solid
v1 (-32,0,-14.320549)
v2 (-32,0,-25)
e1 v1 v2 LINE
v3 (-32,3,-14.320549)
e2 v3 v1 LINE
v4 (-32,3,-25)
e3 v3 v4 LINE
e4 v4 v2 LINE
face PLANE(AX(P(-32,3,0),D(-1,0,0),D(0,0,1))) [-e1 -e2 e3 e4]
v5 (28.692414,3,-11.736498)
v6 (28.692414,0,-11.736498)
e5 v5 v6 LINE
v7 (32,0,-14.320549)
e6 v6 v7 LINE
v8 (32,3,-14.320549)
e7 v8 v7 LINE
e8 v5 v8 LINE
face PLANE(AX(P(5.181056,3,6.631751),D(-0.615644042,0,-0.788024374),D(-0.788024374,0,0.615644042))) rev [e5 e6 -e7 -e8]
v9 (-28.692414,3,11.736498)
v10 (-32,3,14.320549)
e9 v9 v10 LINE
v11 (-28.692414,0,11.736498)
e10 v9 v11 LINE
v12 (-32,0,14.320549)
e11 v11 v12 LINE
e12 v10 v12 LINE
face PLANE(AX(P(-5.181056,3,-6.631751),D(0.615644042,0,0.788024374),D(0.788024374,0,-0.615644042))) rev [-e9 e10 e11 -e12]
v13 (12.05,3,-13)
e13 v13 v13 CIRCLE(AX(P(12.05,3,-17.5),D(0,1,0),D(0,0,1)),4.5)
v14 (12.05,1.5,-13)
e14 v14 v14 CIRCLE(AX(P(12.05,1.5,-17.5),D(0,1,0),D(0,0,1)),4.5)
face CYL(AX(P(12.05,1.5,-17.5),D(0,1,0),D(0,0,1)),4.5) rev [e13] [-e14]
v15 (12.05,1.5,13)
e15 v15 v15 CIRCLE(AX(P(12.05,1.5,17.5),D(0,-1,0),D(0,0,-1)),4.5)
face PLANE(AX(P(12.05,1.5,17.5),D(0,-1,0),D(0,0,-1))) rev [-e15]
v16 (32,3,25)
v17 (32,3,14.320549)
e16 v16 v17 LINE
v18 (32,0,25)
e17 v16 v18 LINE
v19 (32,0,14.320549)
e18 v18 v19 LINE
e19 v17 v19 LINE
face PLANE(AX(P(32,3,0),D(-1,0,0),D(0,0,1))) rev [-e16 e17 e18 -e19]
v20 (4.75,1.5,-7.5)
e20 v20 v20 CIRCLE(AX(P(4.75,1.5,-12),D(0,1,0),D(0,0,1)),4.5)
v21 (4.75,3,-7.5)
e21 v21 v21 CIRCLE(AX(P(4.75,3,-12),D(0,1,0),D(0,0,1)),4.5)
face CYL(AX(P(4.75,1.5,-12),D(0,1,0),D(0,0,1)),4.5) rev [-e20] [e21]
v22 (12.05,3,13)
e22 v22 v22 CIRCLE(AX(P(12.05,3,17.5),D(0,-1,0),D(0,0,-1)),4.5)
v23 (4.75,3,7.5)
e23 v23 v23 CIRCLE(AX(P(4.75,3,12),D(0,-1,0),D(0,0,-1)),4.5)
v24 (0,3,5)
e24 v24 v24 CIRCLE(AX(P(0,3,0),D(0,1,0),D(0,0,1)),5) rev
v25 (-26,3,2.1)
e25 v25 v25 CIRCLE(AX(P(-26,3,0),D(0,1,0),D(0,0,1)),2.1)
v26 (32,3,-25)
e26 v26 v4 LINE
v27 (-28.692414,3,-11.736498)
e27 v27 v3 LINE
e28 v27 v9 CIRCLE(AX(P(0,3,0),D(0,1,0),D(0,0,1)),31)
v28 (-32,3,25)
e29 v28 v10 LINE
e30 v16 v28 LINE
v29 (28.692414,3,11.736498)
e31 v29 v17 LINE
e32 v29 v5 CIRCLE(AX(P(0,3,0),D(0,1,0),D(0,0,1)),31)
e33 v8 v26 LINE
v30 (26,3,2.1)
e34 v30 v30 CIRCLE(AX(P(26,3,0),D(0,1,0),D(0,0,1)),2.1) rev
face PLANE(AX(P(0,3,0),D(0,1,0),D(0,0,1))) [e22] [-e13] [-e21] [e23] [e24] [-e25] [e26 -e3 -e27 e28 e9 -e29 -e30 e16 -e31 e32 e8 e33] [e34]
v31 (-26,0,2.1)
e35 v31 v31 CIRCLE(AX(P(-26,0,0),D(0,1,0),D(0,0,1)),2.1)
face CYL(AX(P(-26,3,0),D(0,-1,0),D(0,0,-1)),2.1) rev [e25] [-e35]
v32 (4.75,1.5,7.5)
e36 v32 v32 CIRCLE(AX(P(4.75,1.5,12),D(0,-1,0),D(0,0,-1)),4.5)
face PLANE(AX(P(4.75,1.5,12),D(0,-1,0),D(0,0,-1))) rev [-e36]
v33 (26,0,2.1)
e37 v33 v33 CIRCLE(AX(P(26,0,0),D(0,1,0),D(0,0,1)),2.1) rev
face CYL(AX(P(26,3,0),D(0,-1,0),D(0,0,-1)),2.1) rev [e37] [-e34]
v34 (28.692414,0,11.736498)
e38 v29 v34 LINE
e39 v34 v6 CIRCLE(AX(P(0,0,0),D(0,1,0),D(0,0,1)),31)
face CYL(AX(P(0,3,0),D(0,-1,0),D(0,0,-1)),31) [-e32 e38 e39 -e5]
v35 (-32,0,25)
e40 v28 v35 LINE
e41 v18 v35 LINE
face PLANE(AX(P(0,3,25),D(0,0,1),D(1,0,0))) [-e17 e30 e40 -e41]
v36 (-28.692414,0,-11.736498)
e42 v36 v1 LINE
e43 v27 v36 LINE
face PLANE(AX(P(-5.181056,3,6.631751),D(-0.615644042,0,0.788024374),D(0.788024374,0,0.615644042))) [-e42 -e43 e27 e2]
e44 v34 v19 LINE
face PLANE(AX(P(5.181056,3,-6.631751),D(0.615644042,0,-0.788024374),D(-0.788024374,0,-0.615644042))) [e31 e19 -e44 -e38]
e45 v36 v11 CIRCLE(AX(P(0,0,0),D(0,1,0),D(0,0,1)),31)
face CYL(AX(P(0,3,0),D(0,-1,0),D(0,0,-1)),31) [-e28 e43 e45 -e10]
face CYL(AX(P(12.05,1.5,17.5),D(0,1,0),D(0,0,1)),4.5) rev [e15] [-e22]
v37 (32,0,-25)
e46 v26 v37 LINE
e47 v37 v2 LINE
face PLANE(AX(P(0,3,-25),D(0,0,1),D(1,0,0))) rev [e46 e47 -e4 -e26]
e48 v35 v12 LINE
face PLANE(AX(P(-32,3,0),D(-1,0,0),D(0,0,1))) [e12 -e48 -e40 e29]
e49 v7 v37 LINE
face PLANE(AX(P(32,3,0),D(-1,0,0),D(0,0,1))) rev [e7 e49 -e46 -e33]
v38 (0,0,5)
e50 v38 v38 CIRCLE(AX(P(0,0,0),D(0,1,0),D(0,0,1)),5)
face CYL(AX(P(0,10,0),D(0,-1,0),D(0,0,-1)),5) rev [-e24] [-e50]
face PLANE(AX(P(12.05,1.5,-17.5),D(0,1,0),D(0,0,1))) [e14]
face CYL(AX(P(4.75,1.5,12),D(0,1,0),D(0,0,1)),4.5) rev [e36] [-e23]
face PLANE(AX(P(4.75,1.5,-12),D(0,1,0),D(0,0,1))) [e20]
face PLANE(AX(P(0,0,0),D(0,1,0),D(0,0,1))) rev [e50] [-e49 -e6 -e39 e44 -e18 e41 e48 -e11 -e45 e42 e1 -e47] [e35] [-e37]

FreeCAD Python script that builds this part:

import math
import FreeCAD as App
import Part
import Sketcher
from FreeCAD import Vector

doc = App.newDocument("Part")
body = doc.addObject("PartDesign::Body", "Body")

# Sketch on XZ plane
sketch1 = doc.addObject("Sketcher::SketchObject", "Sketch")
body.addObject(sketch1)
sketch1.AttachmentSupport = (doc.XZ_Plane, [""])
sketch1.MapMode = "FlatFace"
sketch1.addGeometry(Part.LineSegment(Vector(32, 25, 0), Vector(32, 14.3, 0)), False)
sketch1.addGeometry(Part.LineSegment(Vector(32, 14.3, 0), Vector(28.7, 11.7, 0)), False)
sketch1.addGeometry(Part.ArcOfCircle(Part.Circle(Vector(0, 0, 0), Vector(0, 0, 1), 31), math.radians(-22), math.radians(22)), False)
sketch1.addGeometry(Part.LineSegment(Vector(28.7, -11.7, 0), Vector(32, -14.3, 0)), False)
sketch1.addGeometry(Part.LineSegment(Vector(32, -14.3, 0), Vector(32, -25, 0)), False)
sketch1.addGeometry(Part.LineSegment(Vector(32, -25, 0), Vector(-32, -25, 0)), False)
sketch1.addGeometry(Part.LineSegment(Vector(-32, -25, 0), Vector(-32, -14.3, 0)), False)
sketch1.addGeometry(Part.LineSegment(Vector(-32, -14.3, 0), Vector(-28.7, -11.7, 0)), False)
sketch1.addGeometry(Part.ArcOfCircle(Part.Circle(Vector(0, 0, 0), Vector(0, 0, 1), 31), math.radians(158), math.radians(202)), False)
sketch1.addGeometry(Part.LineSegment(Vector(-28.7, 11.7, 0), Vector(-32, 14.3, 0)), False)
sketch1.addGeometry(Part.LineSegment(Vector(-32, 14.3, 0), Vector(-32, 25, 0)), False)
sketch1.addGeometry(Part.LineSegment(Vector(-32, 25, 0), Vector(32, 25, 0)), False)
sketch1.addGeometry(Part.Circle(Vector(-26, 0, 0), Vector(0, 0, 1), 2.1), False)
sketch1.addGeometry(Part.Circle(Vector(26, 0, 0), Vector(0, 0, 1), 2.1), False)
sketch1.addConstraint(Sketcher.Constraint("Coincident", 0, 2, 1, 1))
sketch1.addConstraint(Sketcher.Constraint("Coincident", 1, 2, 2, 2))
sketch1.addConstraint(Sketcher.Constraint("Coincident", 2, 1, 3, 1))
sketch1.addConstraint(Sketcher.Constraint("Coincident", 3, 2, 4, 1))
sketch1.addConstraint(Sketcher.Constraint("Coincident", 4, 2, 5, 1))
sketch1.addConstraint(Sketcher.Constraint("Coincident", 5, 2, 6, 1))
sketch1.addConstraint(Sketcher.Constraint("Coincident", 6, 2, 7, 1))
sketch1.addConstraint(Sketcher.Constraint("Coincident", 7, 2, 8, 2))
sketch1.addConstraint(Sketcher.Constraint("Coincident", 8, 1, 9, 1))
sketch1.addConstraint(Sketcher.Constraint("Coincident", 9, 2, 10, 1))
sketch1.addConstraint(Sketcher.Constraint("Coincident", 10, 2, 11, 1))
sketch1.addConstraint(Sketcher.Constraint("Coincident", 11, 2, 0, 1))
sketch1.addConstraint(Sketcher.Constraint("Vertical", 0))
sketch1.addConstraint(Sketcher.Constraint("Vertical", 4))
sketch1.addConstraint(Sketcher.Constraint("Horizontal", 5))
sketch1.addConstraint(Sketcher.Constraint("Vertical", 6))
sketch1.addConstraint(Sketcher.Constraint("Vertical", 10))
sketch1.addConstraint(Sketcher.Constraint("Horizontal", 11))
sketch1.addConstraint(Sketcher.Constraint("Coincident", 2, 3, -1, 1))
sketch1.addConstraint(Sketcher.Constraint("Coincident", 8, 3, -1, 1))
sketch1.addConstraint(Sketcher.Constraint("Equal", 2, 8))
sketch1.addConstraint(Sketcher.Constraint("Equal", 12, 13))
sketch1.addConstraint(Sketcher.Constraint("Symmetric", 12, 3, 13, 3, -1, 1))
sketch1.addConstraint(Sketcher.Constraint("Symmetric", 0, 2, 6, 2, -1, 1))
sketch1.addConstraint(Sketcher.Constraint("Symmetric", 3, 2, 9, 2, -1, 1))
sketch1.addConstraint(Sketcher.Constraint("Symmetric", 3, 2, 6, 2, -2))
sketch1.addConstraint(Sketcher.Constraint("PointOnObject", 12, 3, -1))
sketch1.addConstraint(Sketcher.Constraint("Parallel", 1, 7))
sketch1.addConstraint(Sketcher.Constraint("Parallel", 3, 9))
sketch1.addConstraint(Sketcher.Constraint("Horizontal", 2, 1, 7, 2))
sketch1.addConstraint(Sketcher.Constraint("Equal", 0, 4))
sketch1.addConstraint(Sketcher.Constraint("Radius", 2, 31.0))
sketch1.addConstraint(Sketcher.Constraint("Diameter", 12, 4.2))
sketch1.addConstraint(Sketcher.Constraint("DistanceX", 5, 2, 5, 1, 64.0))
sketch1.addConstraint(Sketcher.Constraint("DistanceX", 12, 3, -1, 1, 26.0))
sketch1.addConstraint(Sketcher.Constraint("DistanceY", 4, 2, -1, 1, 25.0))
sketch1.addConstraint(Sketcher.Constraint("DistanceY", 0, 2, 0, 1, 10.679451))
sketch1.addConstraint(Sketcher.Constraint("DistanceY", 1, 2, 0, 2, 2.584052))
pad1 = doc.addObject("PartDesign::Pad", "Pad")
body.addObject(pad1)
pad1.Profile = sketch1
pad1.Length = 3
pad1.Reversed = True

# Sketch on XZ plane
sketch2 = doc.addObject("Sketcher::SketchObject", "Sketch001")
body.addObject(sketch2)
sketch2.AttachmentSupport = (doc.XZ_Plane, [""])
sketch2.MapMode = "FlatFace"
sketch2.addGeometry(Part.Circle(Vector(0, 0, 0), Vector(0, 0, 1), 5), False)
sketch2.addConstraint(Sketcher.Constraint("Coincident", 0, 3, -1, 1))
sketch2.addConstraint(Sketcher.Constraint("Diameter", 0, 10.0))
pocket1 = doc.addObject("PartDesign::Pocket", "Pocket")
body.addObject(pocket1)
pocket1.Profile = sketch2
pocket1.Length = 10

# Sketch on XZ plane
sketch3 = doc.addObject("Sketcher::SketchObject", "Sketch002")
body.addObject(sketch3)
sketch3.AttachmentSupport = (doc.XZ_Plane, [""])
sketch3.MapMode = "FlatFace"
sketch3.AttachmentOffset = App.Placement(Vector(0, 0, -3), App.Rotation())
sketch3.addGeometry(Part.Circle(Vector(4.8, -12, 0), Vector(0, 0, 1), 4.5), False)
sketch3.addGeometry(Part.Circle(Vector(12.1, -17.5, 0), Vector(0, 0, 1), 4.5), False)
sketch3.addGeometry(Part.Circle(Vector(4.8, 12, 0), Vector(0, 0, 1), 4.5), False)
sketch3.addGeometry(Part.Circle(Vector(12.1, 17.5, 0), Vector(0, 0, 1), 4.5), False)
sketch3.addConstraint(Sketcher.Constraint("Equal", 0, 1))
sketch3.addConstraint(Sketcher.Constraint("Equal", 1, 2))
sketch3.addConstraint(Sketcher.Constraint("Equal", 2, 3))
sketch3.addConstraint(Sketcher.Constraint("Symmetric", 0, 3, 2, 3, -1))
sketch3.addConstraint(Sketcher.Constraint("Symmetric", 1, 3, 3, 3, -1))
sketch3.addConstraint(Sketcher.Constraint("Diameter", 0, 9.0))
sketch3.addConstraint(Sketcher.Constraint("DistanceY", 0, 3, -1, 1, 12.0))
sketch3.addConstraint(Sketcher.Constraint("DistanceY", 1, 3, 3, 3, 35.0))
sketch3.addConstraint(Sketcher.Constraint("DistanceX", 0, 3, 1, 3, 7.3))
sketch3.addConstraint(Sketcher.Constraint("DistanceX", -1, 1, 0, 3, 4.75))
pocket2 = doc.addObject("PartDesign::Pocket", "Pocket001")
body.addObject(pocket2)
pocket2.Profile = sketch3
pocket2.Length = 1.5
pocket2.Reversed = True

doc.recompute()
